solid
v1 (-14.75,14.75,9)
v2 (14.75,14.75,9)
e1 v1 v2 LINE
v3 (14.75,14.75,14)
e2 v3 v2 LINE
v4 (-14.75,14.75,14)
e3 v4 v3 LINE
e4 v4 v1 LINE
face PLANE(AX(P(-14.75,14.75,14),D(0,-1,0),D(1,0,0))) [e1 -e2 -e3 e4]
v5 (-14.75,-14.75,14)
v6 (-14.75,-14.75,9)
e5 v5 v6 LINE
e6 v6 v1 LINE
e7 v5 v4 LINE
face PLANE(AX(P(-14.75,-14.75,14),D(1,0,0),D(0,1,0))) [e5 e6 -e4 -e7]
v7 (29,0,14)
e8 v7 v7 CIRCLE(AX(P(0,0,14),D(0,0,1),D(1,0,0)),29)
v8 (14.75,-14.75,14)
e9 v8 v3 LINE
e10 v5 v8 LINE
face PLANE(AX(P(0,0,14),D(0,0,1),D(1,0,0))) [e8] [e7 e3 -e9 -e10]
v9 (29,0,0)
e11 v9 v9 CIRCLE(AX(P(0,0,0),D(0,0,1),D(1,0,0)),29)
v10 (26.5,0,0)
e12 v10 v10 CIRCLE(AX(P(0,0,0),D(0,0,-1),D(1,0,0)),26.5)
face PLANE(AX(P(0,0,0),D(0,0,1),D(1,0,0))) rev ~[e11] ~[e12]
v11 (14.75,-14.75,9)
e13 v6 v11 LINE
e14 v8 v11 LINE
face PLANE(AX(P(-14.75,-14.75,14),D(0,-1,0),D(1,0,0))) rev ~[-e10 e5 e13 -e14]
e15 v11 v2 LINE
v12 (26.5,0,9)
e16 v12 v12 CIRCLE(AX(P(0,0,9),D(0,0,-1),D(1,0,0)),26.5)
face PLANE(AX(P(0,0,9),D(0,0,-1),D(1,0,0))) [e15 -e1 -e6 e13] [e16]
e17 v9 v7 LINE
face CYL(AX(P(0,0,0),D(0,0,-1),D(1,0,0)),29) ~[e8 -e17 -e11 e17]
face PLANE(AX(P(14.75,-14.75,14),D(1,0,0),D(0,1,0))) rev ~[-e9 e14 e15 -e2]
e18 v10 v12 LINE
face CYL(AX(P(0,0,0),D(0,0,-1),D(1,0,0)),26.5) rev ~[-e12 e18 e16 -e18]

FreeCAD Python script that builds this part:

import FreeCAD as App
import Part
import Sketcher
Q = App.Units.Quantity

doc = App.newDocument("Part")
body = doc.addObject("PartDesign::Body", "Body")

# Sketch on XY plane
sketch1 = body.newObject("Sketcher::SketchObject", "Sketch")
sketch1.AttachmentSupport = (doc.getObject("XY_Plane"), [""])
sketch1.MapMode = "FlatFace"
sketch1.addGeometry(Part.Circle(App.Vector(0, 0, 0), App.Vector(0, 0, 1), 29), False)
sketch1.addConstraint([
    Sketcher.Constraint("Coincident", 0, 3, -1, 1),
    Sketcher.Constraint("Diameter", 0, Q("58 mm")),
])
pad1 = body.newObject("PartDesign::Pad", "Pad")
pad1.Profile = sketch1
pad1.Length = 14

# Sketch on XY plane
sketch2 = body.newObject("Sketcher::SketchObject", "Sketch001")
sketch2.AttachmentSupport = (doc.getObject("XY_Plane"), [""])
sketch2.MapMode = "FlatFace"
sketch2.AttachmentOffset = App.Placement(App.Vector(0, 0, 14), App.Rotation())
sketch2.addGeometry([
    Part.LineSegment(App.Vector(-15, 15, 0), App.Vector(-15, -15, 0)),
    Part.LineSegment(App.Vector(-15, -15, 0), App.Vector(15, -15, 0)),
    Part.LineSegment(App.Vector(15, -15, 0), App.Vector(15, 15, 0)),
    Part.LineSegment(App.Vector(15, 15, 0), App.Vector(-15, 15, 0)),
], False)
sketch2.addConstraint([
    Sketcher.Constraint("Coincident", 0, 2, 1, 1),
    Sketcher.Constraint("Coincident", 1, 2, 2, 1),
    Sketcher.Constraint("Coincident", 2, 2, 3, 1),
    Sketcher.Constraint("Coincident", 3, 2, 0, 1),
    Sketcher.Constraint("Vertical", 0),
    Sketcher.Constraint("Horizontal", 1),
    Sketcher.Constraint("Vertical", 2),
    Sketcher.Constraint("Horizontal", 3),
    Sketcher.Constraint("Symmetric", 0, 2, 2, 2, -1, 1),
    Sketcher.Constraint("Equal", 3, 0),
    Sketcher.Constraint("DistanceX", 1, 1, 1, 2, Q("29.5 mm")),
])
pocket1 = body.newObject("PartDesign::Pocket", "Pocket")
pocket1.Profile = sketch2
pocket1.Length = 25

# Sketch on XY plane
sketch3 = body.newObject("Sketcher::SketchObject", "Sketch002")
sketch3.AttachmentSupport = (doc.getObject("XY_Plane"), [""])
sketch3.MapMode = "FlatFace"
sketch3.addGeometry(Part.Circle(App.Vector(0, 0, 0), App.Vector(0, 0, 1), 26), False)
sketch3.addConstraint([
    Sketcher.Constraint("Coincident", 0, 3, -1, 1),
    Sketcher.Constraint("Diameter", 0, Q("53 mm")),
])
pocket2 = body.newObject("PartDesign::Pocket", "Pocket001")
pocket2.Profile = sketch3
pocket2.Length = 9
pocket2.Reversed = True

doc.recompute()
